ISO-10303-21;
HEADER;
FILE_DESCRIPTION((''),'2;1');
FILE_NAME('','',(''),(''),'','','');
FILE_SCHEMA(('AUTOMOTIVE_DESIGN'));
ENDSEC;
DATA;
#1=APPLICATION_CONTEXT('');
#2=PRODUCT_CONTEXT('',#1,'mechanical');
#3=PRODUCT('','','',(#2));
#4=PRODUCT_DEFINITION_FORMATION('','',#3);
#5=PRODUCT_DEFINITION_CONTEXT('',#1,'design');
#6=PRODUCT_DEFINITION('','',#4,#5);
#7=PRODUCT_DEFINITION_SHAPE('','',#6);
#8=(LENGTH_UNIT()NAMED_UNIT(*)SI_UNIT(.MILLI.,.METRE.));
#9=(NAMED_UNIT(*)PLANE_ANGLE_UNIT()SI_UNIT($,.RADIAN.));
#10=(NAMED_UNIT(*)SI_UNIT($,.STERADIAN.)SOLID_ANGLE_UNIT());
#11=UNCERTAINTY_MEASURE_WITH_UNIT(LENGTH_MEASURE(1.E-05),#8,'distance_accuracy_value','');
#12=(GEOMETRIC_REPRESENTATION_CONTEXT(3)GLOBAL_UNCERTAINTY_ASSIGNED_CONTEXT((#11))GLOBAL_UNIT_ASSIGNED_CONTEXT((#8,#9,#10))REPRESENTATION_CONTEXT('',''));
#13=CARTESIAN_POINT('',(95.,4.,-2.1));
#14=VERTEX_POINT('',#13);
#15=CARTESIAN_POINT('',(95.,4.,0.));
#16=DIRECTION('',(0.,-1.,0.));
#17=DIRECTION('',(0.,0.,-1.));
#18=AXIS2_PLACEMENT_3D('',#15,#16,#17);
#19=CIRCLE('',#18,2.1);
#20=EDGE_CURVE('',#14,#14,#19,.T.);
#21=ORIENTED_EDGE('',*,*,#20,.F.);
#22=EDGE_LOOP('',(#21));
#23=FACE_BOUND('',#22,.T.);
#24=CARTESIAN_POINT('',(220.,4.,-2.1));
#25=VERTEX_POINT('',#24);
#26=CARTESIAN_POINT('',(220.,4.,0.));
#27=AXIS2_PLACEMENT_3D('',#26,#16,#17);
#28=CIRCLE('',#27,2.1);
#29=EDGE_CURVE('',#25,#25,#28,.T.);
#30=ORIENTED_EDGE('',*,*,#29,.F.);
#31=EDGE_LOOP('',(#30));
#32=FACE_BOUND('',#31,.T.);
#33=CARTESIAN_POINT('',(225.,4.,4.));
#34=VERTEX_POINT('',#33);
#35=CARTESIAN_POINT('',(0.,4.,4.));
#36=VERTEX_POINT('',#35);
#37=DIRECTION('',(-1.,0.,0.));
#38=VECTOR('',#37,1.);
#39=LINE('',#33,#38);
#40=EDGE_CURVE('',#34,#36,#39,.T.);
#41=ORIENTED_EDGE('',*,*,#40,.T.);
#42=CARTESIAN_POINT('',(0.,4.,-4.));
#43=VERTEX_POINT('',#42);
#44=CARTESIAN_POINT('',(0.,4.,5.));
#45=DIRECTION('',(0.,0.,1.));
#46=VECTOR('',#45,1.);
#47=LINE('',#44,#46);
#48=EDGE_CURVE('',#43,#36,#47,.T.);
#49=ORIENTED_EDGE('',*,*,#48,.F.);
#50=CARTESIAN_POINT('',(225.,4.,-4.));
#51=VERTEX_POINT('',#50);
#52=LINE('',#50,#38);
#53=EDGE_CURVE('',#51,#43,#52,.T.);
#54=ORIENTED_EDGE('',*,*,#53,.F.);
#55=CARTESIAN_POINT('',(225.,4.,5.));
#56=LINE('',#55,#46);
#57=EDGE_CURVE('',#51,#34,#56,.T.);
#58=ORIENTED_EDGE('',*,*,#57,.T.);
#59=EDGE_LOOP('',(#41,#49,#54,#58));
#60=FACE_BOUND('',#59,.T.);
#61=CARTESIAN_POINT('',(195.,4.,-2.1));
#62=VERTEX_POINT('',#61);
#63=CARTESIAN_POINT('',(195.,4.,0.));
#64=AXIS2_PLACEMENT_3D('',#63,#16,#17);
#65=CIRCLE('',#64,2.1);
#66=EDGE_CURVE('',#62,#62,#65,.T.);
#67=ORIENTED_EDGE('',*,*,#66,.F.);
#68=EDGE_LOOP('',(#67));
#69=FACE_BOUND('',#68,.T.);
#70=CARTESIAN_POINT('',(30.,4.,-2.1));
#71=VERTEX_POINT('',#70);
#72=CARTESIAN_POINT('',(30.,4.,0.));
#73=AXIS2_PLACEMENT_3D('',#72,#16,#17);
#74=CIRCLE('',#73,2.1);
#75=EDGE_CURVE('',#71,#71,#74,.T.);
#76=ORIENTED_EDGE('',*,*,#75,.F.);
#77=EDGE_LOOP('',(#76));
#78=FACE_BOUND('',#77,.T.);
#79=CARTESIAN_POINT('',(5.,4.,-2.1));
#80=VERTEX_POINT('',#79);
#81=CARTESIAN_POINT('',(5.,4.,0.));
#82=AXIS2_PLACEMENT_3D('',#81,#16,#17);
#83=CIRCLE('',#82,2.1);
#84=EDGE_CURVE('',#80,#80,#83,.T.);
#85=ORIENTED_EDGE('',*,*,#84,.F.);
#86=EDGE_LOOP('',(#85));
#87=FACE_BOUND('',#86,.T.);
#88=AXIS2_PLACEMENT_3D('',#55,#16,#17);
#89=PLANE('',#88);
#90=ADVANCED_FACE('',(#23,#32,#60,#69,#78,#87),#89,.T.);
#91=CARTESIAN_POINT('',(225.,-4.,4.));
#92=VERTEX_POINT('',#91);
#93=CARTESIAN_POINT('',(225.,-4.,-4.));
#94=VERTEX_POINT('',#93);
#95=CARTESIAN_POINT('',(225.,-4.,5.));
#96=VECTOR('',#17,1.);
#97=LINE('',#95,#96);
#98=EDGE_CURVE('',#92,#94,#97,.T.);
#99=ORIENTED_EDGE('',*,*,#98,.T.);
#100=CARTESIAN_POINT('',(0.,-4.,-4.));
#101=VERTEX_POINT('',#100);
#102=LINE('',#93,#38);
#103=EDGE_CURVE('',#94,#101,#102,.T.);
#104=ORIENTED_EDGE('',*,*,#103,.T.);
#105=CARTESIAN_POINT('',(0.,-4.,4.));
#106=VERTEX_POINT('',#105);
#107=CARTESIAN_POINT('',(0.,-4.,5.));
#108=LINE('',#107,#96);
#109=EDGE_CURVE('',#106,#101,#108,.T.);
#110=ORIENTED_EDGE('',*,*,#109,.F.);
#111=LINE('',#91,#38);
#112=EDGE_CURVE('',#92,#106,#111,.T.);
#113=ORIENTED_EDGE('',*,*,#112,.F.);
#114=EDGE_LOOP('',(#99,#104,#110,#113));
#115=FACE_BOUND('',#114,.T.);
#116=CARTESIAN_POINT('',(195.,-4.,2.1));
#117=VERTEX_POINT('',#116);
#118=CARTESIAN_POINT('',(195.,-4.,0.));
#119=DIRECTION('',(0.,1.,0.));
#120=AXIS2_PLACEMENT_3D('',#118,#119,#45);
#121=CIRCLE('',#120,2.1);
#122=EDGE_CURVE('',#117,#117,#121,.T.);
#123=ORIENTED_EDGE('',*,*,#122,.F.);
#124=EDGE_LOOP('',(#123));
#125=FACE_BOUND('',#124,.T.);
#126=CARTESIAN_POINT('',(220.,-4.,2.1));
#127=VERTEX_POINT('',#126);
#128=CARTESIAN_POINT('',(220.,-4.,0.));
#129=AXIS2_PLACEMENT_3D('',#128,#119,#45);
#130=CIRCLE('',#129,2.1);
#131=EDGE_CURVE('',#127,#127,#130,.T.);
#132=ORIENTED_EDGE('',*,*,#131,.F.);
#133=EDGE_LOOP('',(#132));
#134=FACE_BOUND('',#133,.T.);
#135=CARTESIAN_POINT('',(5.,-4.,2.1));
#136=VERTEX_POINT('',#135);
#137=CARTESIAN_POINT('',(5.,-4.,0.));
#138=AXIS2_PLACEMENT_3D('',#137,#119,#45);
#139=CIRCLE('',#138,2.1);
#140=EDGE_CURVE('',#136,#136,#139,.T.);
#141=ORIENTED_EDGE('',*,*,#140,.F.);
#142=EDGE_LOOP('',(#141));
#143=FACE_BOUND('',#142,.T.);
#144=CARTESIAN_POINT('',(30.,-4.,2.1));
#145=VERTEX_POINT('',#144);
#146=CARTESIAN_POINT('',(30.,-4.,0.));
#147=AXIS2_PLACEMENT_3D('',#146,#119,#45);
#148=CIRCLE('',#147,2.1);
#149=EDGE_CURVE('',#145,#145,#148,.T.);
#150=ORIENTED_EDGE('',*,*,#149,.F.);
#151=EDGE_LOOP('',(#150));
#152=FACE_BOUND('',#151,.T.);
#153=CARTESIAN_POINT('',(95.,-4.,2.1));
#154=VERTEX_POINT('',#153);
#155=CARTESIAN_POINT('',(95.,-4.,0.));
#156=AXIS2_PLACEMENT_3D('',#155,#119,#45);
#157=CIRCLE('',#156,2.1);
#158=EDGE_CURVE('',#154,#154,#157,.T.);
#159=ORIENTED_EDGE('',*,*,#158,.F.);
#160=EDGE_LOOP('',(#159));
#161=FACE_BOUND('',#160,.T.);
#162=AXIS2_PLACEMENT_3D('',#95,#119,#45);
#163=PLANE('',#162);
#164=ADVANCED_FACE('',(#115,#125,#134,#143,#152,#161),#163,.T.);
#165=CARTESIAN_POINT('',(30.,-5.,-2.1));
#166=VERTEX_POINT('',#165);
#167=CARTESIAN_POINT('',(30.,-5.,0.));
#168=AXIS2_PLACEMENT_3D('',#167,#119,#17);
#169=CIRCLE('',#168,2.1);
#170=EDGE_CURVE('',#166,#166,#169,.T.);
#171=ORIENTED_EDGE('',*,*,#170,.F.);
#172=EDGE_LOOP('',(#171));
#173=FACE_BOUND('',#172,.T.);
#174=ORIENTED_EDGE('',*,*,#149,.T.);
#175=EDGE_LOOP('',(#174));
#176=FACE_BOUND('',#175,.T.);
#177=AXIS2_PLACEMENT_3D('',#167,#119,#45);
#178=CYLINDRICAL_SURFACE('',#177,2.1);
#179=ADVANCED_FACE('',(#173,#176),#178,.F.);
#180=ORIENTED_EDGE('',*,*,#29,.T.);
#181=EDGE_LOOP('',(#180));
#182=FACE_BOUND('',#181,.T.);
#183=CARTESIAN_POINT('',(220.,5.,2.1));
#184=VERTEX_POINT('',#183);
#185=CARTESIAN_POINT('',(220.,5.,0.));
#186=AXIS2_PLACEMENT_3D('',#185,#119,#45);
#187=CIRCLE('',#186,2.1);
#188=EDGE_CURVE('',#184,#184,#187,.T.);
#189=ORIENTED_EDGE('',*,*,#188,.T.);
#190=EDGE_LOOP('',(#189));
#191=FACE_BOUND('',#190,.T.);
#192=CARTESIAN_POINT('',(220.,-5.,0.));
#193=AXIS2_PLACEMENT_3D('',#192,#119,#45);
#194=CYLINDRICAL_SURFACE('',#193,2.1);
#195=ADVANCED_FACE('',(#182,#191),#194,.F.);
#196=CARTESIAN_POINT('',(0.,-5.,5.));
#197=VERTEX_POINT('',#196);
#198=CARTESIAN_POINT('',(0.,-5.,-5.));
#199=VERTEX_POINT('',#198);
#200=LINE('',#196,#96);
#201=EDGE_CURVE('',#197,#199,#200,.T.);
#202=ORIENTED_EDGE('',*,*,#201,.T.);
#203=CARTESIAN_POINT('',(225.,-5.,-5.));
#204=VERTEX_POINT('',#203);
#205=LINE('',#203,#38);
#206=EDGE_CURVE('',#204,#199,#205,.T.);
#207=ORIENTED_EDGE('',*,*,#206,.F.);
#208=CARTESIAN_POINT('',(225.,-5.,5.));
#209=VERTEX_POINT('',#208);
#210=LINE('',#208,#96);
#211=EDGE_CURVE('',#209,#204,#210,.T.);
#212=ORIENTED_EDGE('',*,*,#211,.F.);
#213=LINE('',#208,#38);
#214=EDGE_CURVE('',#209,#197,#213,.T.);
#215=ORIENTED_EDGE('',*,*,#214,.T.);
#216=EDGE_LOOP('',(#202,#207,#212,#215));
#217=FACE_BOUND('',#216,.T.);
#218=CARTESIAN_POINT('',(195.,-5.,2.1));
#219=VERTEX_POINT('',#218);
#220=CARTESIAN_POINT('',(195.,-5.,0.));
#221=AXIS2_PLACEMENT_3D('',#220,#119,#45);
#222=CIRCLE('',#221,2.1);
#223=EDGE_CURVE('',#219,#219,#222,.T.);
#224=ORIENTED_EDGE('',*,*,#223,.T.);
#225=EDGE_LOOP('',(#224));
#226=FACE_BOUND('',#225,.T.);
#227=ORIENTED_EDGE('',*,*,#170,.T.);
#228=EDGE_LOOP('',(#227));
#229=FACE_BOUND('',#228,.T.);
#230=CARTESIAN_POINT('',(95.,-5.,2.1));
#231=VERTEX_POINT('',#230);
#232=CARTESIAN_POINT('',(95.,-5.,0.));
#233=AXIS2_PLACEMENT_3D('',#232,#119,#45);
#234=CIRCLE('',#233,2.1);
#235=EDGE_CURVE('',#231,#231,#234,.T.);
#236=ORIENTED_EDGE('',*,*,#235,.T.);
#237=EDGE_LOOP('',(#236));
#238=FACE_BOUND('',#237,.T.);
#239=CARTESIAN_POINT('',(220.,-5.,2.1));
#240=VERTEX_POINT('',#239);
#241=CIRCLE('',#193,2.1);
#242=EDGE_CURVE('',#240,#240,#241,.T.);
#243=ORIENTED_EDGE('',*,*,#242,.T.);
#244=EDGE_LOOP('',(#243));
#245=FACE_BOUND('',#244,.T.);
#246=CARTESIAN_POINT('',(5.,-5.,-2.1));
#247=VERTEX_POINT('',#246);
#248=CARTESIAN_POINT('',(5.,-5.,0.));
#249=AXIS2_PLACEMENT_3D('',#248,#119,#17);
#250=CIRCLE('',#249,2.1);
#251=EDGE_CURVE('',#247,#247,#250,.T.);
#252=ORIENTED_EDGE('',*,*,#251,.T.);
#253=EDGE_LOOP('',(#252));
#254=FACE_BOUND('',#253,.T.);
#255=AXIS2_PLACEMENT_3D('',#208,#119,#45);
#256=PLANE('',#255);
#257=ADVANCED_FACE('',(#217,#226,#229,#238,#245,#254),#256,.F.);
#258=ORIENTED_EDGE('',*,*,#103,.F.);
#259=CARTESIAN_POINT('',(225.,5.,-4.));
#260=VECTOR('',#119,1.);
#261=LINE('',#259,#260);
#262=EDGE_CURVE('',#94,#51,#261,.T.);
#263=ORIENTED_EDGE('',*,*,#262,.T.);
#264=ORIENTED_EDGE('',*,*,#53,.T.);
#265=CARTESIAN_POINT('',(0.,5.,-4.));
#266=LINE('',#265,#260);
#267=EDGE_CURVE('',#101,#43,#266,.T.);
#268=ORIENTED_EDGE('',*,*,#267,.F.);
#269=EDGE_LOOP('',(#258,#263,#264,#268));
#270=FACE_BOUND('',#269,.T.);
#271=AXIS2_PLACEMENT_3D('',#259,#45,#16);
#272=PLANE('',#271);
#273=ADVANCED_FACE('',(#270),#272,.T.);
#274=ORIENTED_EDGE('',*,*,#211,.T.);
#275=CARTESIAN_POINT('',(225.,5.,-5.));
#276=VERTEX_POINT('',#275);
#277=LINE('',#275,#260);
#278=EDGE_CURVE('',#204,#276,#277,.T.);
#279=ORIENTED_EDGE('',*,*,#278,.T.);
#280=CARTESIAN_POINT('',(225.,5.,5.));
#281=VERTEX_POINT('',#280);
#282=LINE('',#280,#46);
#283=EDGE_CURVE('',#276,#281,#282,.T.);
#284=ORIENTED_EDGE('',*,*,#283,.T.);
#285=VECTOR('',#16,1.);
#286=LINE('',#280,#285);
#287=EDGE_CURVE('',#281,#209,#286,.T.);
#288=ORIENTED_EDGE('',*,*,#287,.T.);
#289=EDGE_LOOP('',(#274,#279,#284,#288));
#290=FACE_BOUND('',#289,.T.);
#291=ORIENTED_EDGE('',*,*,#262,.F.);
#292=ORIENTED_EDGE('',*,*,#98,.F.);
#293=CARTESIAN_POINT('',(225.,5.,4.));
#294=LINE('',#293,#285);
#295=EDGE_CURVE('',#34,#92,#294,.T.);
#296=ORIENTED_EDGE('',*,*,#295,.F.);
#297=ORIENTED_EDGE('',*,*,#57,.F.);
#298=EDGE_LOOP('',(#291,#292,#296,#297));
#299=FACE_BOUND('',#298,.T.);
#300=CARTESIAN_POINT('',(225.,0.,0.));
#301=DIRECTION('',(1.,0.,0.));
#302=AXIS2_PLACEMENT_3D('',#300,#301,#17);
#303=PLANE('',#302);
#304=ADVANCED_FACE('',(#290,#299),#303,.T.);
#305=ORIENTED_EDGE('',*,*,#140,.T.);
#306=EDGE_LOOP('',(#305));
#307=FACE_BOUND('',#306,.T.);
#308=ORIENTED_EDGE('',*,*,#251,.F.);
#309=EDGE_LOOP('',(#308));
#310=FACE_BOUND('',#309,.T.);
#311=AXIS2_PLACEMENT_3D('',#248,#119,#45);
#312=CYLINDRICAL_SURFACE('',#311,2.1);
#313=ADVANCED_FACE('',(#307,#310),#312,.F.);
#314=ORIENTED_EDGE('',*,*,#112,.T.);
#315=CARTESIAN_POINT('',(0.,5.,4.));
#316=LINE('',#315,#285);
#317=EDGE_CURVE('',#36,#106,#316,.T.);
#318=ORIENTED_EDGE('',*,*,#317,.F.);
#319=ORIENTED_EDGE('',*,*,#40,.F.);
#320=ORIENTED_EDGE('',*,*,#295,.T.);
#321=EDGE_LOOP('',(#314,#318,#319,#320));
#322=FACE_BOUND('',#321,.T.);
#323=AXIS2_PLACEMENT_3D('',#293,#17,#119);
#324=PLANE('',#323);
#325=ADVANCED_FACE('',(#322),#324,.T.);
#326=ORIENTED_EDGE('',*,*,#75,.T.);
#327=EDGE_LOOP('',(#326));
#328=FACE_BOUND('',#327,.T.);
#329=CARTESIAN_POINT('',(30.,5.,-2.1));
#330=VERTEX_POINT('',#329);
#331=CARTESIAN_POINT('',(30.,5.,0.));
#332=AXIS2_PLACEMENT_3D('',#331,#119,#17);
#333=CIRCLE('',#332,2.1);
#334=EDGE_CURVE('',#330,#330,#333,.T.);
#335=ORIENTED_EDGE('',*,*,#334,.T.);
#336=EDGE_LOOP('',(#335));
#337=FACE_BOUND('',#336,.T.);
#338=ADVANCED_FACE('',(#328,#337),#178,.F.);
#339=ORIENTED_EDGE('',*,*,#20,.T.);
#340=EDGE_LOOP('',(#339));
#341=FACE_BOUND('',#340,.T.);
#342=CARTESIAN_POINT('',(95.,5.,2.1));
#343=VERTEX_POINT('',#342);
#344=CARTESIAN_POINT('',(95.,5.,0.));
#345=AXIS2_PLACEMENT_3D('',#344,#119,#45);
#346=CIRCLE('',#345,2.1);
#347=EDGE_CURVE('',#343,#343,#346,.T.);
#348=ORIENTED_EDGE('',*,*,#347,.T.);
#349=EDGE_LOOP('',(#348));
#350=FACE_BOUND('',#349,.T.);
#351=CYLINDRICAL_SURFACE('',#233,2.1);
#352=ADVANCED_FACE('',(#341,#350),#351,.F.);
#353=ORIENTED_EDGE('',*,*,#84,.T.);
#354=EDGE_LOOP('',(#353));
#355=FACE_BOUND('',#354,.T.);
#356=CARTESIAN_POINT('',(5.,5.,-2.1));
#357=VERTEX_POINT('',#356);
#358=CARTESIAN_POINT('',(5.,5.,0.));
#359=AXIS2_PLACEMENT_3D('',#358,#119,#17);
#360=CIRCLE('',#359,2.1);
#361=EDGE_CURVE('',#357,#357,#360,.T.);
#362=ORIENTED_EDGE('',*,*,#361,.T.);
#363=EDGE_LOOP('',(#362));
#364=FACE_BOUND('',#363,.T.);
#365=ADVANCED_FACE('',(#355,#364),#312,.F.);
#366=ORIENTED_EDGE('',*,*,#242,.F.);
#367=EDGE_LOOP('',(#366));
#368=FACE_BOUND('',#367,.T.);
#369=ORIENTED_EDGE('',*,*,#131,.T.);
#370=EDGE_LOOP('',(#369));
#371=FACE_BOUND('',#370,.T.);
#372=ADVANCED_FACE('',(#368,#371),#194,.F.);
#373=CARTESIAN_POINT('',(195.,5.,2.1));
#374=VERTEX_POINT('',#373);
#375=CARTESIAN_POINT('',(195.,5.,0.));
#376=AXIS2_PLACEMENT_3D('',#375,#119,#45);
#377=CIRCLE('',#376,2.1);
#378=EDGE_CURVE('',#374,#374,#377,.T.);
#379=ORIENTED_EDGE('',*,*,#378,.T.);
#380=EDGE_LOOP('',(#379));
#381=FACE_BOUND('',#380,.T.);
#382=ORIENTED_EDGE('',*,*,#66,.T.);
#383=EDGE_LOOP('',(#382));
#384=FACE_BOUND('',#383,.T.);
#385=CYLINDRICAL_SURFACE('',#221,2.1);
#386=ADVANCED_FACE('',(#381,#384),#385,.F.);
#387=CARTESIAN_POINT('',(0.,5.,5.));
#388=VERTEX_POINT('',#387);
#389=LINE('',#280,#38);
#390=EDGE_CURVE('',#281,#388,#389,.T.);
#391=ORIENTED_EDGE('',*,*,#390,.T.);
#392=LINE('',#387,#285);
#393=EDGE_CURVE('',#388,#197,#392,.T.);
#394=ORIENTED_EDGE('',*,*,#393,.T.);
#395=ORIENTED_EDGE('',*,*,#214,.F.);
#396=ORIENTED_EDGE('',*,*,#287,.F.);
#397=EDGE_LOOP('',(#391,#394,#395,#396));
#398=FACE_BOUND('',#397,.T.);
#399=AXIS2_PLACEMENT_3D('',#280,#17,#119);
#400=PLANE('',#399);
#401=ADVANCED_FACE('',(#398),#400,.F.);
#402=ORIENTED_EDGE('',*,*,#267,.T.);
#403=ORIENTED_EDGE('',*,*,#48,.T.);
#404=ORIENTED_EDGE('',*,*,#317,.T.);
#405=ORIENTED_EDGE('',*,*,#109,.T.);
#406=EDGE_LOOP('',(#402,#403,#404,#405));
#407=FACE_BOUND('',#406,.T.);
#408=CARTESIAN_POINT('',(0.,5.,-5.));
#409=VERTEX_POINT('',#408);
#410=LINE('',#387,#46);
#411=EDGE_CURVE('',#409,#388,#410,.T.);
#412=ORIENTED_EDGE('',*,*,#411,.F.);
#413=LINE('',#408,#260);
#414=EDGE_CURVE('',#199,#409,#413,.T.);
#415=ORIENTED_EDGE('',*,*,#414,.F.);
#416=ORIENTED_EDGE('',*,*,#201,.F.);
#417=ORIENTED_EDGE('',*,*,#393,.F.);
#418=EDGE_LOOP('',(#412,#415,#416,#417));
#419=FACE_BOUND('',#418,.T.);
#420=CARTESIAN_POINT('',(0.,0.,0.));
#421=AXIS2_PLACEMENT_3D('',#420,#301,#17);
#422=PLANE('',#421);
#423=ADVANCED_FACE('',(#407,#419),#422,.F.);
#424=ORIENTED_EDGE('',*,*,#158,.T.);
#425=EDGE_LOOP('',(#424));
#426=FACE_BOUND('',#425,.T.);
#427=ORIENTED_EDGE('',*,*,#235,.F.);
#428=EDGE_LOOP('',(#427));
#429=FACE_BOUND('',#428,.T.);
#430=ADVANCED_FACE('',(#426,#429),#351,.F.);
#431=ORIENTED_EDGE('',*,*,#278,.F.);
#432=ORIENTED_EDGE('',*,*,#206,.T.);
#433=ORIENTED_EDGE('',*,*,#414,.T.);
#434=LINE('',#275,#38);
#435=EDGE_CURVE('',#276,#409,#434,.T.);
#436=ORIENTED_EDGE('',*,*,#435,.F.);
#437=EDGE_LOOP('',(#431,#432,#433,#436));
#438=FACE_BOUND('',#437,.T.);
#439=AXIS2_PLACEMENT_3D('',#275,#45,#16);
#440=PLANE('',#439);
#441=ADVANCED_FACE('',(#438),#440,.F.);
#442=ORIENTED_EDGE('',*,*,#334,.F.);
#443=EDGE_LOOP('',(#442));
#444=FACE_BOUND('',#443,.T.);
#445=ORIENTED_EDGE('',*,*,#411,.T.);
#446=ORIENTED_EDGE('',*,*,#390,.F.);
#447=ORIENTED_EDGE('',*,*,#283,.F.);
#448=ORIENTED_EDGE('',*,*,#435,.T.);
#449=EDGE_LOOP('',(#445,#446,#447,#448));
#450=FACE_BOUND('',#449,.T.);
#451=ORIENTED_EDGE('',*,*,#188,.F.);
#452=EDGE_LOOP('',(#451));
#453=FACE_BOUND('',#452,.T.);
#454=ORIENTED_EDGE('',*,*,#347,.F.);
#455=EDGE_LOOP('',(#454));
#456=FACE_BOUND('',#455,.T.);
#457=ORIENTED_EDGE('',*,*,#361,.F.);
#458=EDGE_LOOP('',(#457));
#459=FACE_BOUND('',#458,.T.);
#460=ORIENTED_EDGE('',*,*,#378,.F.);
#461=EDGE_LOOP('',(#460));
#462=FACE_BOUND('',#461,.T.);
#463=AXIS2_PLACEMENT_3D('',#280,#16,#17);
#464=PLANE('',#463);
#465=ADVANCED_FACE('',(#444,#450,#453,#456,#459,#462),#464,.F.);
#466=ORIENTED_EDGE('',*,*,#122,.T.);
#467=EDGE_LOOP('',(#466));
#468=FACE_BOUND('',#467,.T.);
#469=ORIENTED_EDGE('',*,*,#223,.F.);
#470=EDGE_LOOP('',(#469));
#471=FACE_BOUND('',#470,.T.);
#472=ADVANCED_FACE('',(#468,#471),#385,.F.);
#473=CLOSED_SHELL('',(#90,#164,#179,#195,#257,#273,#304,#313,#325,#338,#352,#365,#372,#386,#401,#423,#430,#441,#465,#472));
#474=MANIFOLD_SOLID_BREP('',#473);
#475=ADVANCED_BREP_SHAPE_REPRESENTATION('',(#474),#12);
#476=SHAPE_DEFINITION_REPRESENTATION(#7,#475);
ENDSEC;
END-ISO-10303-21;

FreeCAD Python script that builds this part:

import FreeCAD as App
import Part
import Sketcher
from FreeCAD import Vector


def add_polygon(sketch, points):
    """Adds a closed chain of lines whose ends are joined by coincident constraints."""
    first, n = sketch.GeometryCount, len(points)
    for a, b in zip(points, points[1:] + points[:1]):
        sketch.addGeometry(Part.LineSegment(App.Vector(*a, 0), App.Vector(*b, 0)), False)
    for i in range(n):
        sketch.addConstraint(Sketcher.Constraint("Coincident", first + i, 2, first + (i + 1) % n, 1))

doc = App.newDocument("Part")
params = doc.addObject("Spreadsheet::Sheet", "Params")
for row, (alias, value) in enumerate([
    ("sketch1_width", "10 mm"),
    ("sketch1_width2", "8 mm"),
    ("pad1_length", "225 mm"),
    ("sketch2_diameter", "4.2 mm"),
    ("sketch3_diameter", "4.2 mm"),
], start=1):
    params.set(f"A{row}", alias)
    params.set(f"B{row}", "=" + value)
    params.setAlias(f"B{row}", alias)

body = doc.addObject("PartDesign::Body", "Body")

# Sketch on YZ plane
sketch1 = body.newObject("Sketcher::SketchObject", "Sketch")
sketch1.AttachmentSupport = (doc.getObject("YZ_Plane"), [""])
sketch1.MapMode = "FlatFace"
add_polygon(sketch1, [(5, 5), (-5, 5), (-5, -5), (5, -5)])  # lines 0-3
add_polygon(sketch1, [(-4, -4), (-4, 4), (4, 4), (4, -4)])  # lines 4-7
sketch1.addConstraint(Sketcher.Constraint("Horizontal", 0))
sketch1.addConstraint(Sketcher.Constraint("Vertical", 1))
sketch1.addConstraint(Sketcher.Constraint("Horizontal", 2))
sketch1.addConstraint(Sketcher.Constraint("Vertical", 3))
sketch1.addConstraint(Sketcher.Constraint("Vertical", 4))
sketch1.addConstraint(Sketcher.Constraint("Horizontal", 5))
sketch1.addConstraint(Sketcher.Constraint("Vertical", 6))
sketch1.addConstraint(Sketcher.Constraint("Horizontal", 7))
sketch1.addConstraint(Sketcher.Constraint("Symmetric", 0, 2, 2, 2, -1, 1))
sketch1.addConstraint(Sketcher.Constraint("Symmetric", 4, 2, 6, 2, -1, 1))
sketch1.addConstraint(Sketcher.Constraint("Equal", 2, 1))
sketch1.addConstraint(Sketcher.Constraint("Equal", 7, 4))
sketch1.addConstraint(Sketcher.Constraint("DistanceX", 0, 2, 0, 1, 10.0))
sketch1.addConstraint(Sketcher.Constraint("DistanceX", 5, 1, 5, 2, 8.0))
sketch1.setExpression("Constraints[20]", "Params.sketch1_width")
sketch1.setExpression("Constraints[21]", "Params.sketch1_width2")
pad1 = body.newObject("PartDesign::Pad", "Pad")
pad1.Profile = sketch1
pad1.setExpression("Length", "Params.pad1_length")

# Sketch on XZ plane
sketch2 = body.newObject("Sketcher::SketchObject", "Sketch001")
sketch2.AttachmentSupport = (doc.getObject("XZ_Plane"), [""])
sketch2.MapMode = "FlatFace"
sketch2.AttachmentOffset = App.Placement(Vector(0, 0, -5), App.Rotation())
sketch2.addGeometry(Part.Circle(Vector(195, 0, 0), Vector(0, 0, 1), 2.1), False)
sketch2.addGeometry(Part.Circle(Vector(220, 0, 0), Vector(0, 0, 1), 2.1), False)
sketch2.addGeometry(Part.Circle(Vector(5, 0, 0), Vector(0, 0, 1), 2.1), False)
sketch2.addGeometry(Part.Circle(Vector(30, 0, 0), Vector(0, 0, 1), 2.1), False)
sketch2.addConstraint(Sketcher.Constraint("Equal", 0, 1))
sketch2.addConstraint(Sketcher.Constraint("Equal", 1, 2))
sketch2.addConstraint(Sketcher.Constraint("Equal", 2, 3))
sketch2.addConstraint(Sketcher.Constraint("PointOnObject", 0, 3, -1))
sketch2.addConstraint(Sketcher.Constraint("PointOnObject", 1, 3, -1))
sketch2.addConstraint(Sketcher.Constraint("PointOnObject", 2, 3, -1))
sketch2.addConstraint(Sketcher.Constraint("PointOnObject", 3, 3, -1))
sketch2.addConstraint(Sketcher.Constraint("Diameter", 0, 4.2))
sketch2.addConstraint(Sketcher.Constraint("DistanceX", -1, 1, 0, 3, 195.0))
sketch2.addConstraint(Sketcher.Constraint("DistanceX", -1, 1, 1, 3, 220.0))
sketch2.addConstraint(Sketcher.Constraint("DistanceX", -1, 1, 2, 3, 5.0))
sketch2.addConstraint(Sketcher.Constraint("DistanceX", -1, 1, 3, 3, 30.0))
sketch2.setExpression("Constraints[7]", "Params.sketch2_diameter")
pocket1 = body.newObject("PartDesign::Pocket", "Pocket")
pocket1.Profile = sketch2
pocket1.Type = "ThroughAll"
pocket1.Reversed = True

# Sketch on XZ plane
sketch3 = body.newObject("Sketcher::SketchObject", "Sketch002")
sketch3.AttachmentSupport = (doc.getObject("XZ_Plane"), [""])
sketch3.MapMode = "FlatFace"
sketch3.AttachmentOffset = App.Placement(Vector(0, 0, -5), App.Rotation())
sketch3.addGeometry(Part.Circle(Vector(95, 0, 0), Vector(0, 0, 1), 2.1), False)
sketch3.addConstraint(Sketcher.Constraint("PointOnObject", 0, 3, -1))
sketch3.addConstraint(Sketcher.Constraint("Diameter", 0, 4.2))
sketch3.addConstraint(Sketcher.Constraint("DistanceX", -1, 1, 0, 3, 95.0))
sketch3.setExpression("Constraints[1]", "Params.sketch3_diameter")
pocket2 = body.newObject("PartDesign::Pocket", "Pocket001")
pocket2.Profile = sketch3
pocket2.Type = "ThroughAll"
pocket2.Reversed = True

doc.recompute()
